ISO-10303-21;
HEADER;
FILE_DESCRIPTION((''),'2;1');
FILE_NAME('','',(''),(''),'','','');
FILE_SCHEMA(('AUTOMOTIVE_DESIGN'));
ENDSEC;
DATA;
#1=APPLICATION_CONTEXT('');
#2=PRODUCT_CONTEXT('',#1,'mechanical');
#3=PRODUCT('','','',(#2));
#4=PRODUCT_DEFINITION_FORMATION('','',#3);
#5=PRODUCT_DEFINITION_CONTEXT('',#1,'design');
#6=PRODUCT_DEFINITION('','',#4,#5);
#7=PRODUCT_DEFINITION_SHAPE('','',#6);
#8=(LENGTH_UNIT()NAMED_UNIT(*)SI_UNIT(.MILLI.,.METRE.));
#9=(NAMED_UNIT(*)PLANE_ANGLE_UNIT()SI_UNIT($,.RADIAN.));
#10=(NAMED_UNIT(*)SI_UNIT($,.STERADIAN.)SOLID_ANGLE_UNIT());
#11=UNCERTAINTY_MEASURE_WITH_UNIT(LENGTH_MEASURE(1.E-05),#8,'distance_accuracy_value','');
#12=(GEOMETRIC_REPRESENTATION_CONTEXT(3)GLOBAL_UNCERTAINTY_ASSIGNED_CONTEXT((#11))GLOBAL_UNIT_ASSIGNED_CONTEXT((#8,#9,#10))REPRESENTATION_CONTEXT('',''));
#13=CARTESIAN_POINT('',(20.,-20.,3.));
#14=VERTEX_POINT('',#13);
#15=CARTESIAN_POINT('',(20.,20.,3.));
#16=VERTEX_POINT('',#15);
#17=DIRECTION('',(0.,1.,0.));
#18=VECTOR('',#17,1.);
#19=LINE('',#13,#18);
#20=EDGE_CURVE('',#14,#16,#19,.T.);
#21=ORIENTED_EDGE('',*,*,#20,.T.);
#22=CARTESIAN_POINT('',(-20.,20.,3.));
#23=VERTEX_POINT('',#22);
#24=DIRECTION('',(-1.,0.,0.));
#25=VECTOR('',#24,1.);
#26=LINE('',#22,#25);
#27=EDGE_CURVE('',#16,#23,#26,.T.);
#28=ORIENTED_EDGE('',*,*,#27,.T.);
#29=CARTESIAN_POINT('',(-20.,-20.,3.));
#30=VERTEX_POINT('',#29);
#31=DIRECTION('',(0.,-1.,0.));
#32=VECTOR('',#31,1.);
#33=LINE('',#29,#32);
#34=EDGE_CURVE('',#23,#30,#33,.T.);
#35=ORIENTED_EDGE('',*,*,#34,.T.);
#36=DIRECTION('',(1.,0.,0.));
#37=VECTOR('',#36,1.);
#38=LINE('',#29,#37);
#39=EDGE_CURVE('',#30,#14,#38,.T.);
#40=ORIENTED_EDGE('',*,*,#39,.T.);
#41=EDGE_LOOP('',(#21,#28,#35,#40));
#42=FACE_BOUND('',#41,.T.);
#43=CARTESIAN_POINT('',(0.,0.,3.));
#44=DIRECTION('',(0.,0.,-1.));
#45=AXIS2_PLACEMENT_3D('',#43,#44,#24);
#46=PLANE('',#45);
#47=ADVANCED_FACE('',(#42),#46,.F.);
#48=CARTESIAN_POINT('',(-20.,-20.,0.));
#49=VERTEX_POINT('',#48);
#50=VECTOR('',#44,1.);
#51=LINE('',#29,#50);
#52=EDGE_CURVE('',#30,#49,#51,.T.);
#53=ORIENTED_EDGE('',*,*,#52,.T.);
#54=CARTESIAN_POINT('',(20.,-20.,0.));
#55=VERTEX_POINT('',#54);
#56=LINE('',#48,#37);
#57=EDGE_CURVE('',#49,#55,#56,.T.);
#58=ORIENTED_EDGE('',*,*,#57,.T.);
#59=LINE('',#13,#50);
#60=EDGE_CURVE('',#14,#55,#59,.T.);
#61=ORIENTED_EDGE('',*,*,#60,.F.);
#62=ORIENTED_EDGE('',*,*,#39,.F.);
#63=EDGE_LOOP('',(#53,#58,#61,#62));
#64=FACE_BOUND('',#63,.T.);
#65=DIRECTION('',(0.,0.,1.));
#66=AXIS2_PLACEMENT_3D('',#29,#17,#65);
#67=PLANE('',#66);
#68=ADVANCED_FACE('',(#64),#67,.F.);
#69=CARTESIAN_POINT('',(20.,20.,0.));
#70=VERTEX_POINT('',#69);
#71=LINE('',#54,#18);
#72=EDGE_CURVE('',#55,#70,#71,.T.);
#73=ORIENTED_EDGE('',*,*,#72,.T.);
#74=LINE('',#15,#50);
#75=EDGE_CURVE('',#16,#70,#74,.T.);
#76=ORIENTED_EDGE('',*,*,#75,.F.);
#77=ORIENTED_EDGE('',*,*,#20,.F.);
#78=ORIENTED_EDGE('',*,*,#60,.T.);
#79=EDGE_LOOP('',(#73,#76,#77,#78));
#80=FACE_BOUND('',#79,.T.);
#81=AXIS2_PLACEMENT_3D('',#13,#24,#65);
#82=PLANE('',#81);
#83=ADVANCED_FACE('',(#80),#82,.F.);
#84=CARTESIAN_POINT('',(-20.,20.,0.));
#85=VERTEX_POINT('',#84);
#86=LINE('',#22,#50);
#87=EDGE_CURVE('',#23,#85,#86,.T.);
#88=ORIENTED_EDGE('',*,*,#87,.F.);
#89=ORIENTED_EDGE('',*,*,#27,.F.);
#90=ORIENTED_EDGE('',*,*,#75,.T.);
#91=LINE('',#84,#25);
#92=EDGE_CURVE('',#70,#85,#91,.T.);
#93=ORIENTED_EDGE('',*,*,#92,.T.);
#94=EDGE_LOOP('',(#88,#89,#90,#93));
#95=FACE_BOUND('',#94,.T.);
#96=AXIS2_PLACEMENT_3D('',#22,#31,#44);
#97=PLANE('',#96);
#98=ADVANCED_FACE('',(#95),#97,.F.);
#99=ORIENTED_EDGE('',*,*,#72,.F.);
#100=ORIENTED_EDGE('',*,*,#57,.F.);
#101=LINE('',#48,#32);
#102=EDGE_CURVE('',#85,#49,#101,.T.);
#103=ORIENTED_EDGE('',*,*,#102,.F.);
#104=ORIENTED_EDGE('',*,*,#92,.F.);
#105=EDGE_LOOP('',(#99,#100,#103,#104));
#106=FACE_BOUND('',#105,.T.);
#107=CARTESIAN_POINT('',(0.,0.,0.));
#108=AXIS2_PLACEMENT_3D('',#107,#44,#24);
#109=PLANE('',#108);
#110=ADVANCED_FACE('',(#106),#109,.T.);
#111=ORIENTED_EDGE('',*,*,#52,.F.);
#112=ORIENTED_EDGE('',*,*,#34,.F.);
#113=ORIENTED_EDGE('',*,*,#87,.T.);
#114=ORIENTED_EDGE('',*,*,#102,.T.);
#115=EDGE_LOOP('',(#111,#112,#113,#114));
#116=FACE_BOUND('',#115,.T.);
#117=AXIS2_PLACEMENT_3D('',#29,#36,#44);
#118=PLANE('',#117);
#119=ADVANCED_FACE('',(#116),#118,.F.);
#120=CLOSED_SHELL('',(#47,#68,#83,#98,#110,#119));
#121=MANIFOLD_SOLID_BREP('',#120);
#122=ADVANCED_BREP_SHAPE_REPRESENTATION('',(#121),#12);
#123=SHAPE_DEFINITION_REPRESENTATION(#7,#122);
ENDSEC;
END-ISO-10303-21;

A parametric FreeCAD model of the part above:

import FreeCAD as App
import Part
import Sketcher

V = App.Vector
Q = App.Units.Quantity


def add_polygon(sketch, points):
    """Adds a closed chain of lines whose ends are joined by coincident constraints."""
    first, n = sketch.GeometryCount, len(points)
    for a, b in zip(points, points[1:] + points[:1]):
        sketch.addGeometry(Part.LineSegment(App.Vector(*a, 0), App.Vector(*b, 0)), False)
    for i in range(n):
        sketch.addConstraint(Sketcher.Constraint("Coincident", first + i, 2, first + (i + 1) % n, 1))

doc = App.newDocument("Part")
body = doc.addObject("PartDesign::Body", "Body")

# Sketch on XY plane
sketch1 = body.newObject("Sketcher::SketchObject", "Sketch")
sketch1.AttachmentSupport = (doc.getObject("XY_Plane"), [""])
sketch1.MapMode = "FlatFace"
add_polygon(sketch1, [(-20, 20), (-20, -20), (20, -20), (20, 20)])  # lines 0-3
sketch1.addConstraint([
    Sketcher.Constraint("Vertical", 0),
    Sketcher.Constraint("Horizontal", 1),
    Sketcher.Constraint("Vertical", 2),
    Sketcher.Constraint("Horizontal", 3),
    Sketcher.Constraint("Symmetric", 0, 2, 2, 2, -1, 1),
    Sketcher.Constraint("Equal", 3, 0),
    Sketcher.Constraint("DistanceX", 1, 1, 1, 2, Q("40 mm")),
])
pad1 = body.newObject("PartDesign::Pad", "Pad")
pad1.Profile = sketch1
pad1.Length = 3

doc.recompute()
